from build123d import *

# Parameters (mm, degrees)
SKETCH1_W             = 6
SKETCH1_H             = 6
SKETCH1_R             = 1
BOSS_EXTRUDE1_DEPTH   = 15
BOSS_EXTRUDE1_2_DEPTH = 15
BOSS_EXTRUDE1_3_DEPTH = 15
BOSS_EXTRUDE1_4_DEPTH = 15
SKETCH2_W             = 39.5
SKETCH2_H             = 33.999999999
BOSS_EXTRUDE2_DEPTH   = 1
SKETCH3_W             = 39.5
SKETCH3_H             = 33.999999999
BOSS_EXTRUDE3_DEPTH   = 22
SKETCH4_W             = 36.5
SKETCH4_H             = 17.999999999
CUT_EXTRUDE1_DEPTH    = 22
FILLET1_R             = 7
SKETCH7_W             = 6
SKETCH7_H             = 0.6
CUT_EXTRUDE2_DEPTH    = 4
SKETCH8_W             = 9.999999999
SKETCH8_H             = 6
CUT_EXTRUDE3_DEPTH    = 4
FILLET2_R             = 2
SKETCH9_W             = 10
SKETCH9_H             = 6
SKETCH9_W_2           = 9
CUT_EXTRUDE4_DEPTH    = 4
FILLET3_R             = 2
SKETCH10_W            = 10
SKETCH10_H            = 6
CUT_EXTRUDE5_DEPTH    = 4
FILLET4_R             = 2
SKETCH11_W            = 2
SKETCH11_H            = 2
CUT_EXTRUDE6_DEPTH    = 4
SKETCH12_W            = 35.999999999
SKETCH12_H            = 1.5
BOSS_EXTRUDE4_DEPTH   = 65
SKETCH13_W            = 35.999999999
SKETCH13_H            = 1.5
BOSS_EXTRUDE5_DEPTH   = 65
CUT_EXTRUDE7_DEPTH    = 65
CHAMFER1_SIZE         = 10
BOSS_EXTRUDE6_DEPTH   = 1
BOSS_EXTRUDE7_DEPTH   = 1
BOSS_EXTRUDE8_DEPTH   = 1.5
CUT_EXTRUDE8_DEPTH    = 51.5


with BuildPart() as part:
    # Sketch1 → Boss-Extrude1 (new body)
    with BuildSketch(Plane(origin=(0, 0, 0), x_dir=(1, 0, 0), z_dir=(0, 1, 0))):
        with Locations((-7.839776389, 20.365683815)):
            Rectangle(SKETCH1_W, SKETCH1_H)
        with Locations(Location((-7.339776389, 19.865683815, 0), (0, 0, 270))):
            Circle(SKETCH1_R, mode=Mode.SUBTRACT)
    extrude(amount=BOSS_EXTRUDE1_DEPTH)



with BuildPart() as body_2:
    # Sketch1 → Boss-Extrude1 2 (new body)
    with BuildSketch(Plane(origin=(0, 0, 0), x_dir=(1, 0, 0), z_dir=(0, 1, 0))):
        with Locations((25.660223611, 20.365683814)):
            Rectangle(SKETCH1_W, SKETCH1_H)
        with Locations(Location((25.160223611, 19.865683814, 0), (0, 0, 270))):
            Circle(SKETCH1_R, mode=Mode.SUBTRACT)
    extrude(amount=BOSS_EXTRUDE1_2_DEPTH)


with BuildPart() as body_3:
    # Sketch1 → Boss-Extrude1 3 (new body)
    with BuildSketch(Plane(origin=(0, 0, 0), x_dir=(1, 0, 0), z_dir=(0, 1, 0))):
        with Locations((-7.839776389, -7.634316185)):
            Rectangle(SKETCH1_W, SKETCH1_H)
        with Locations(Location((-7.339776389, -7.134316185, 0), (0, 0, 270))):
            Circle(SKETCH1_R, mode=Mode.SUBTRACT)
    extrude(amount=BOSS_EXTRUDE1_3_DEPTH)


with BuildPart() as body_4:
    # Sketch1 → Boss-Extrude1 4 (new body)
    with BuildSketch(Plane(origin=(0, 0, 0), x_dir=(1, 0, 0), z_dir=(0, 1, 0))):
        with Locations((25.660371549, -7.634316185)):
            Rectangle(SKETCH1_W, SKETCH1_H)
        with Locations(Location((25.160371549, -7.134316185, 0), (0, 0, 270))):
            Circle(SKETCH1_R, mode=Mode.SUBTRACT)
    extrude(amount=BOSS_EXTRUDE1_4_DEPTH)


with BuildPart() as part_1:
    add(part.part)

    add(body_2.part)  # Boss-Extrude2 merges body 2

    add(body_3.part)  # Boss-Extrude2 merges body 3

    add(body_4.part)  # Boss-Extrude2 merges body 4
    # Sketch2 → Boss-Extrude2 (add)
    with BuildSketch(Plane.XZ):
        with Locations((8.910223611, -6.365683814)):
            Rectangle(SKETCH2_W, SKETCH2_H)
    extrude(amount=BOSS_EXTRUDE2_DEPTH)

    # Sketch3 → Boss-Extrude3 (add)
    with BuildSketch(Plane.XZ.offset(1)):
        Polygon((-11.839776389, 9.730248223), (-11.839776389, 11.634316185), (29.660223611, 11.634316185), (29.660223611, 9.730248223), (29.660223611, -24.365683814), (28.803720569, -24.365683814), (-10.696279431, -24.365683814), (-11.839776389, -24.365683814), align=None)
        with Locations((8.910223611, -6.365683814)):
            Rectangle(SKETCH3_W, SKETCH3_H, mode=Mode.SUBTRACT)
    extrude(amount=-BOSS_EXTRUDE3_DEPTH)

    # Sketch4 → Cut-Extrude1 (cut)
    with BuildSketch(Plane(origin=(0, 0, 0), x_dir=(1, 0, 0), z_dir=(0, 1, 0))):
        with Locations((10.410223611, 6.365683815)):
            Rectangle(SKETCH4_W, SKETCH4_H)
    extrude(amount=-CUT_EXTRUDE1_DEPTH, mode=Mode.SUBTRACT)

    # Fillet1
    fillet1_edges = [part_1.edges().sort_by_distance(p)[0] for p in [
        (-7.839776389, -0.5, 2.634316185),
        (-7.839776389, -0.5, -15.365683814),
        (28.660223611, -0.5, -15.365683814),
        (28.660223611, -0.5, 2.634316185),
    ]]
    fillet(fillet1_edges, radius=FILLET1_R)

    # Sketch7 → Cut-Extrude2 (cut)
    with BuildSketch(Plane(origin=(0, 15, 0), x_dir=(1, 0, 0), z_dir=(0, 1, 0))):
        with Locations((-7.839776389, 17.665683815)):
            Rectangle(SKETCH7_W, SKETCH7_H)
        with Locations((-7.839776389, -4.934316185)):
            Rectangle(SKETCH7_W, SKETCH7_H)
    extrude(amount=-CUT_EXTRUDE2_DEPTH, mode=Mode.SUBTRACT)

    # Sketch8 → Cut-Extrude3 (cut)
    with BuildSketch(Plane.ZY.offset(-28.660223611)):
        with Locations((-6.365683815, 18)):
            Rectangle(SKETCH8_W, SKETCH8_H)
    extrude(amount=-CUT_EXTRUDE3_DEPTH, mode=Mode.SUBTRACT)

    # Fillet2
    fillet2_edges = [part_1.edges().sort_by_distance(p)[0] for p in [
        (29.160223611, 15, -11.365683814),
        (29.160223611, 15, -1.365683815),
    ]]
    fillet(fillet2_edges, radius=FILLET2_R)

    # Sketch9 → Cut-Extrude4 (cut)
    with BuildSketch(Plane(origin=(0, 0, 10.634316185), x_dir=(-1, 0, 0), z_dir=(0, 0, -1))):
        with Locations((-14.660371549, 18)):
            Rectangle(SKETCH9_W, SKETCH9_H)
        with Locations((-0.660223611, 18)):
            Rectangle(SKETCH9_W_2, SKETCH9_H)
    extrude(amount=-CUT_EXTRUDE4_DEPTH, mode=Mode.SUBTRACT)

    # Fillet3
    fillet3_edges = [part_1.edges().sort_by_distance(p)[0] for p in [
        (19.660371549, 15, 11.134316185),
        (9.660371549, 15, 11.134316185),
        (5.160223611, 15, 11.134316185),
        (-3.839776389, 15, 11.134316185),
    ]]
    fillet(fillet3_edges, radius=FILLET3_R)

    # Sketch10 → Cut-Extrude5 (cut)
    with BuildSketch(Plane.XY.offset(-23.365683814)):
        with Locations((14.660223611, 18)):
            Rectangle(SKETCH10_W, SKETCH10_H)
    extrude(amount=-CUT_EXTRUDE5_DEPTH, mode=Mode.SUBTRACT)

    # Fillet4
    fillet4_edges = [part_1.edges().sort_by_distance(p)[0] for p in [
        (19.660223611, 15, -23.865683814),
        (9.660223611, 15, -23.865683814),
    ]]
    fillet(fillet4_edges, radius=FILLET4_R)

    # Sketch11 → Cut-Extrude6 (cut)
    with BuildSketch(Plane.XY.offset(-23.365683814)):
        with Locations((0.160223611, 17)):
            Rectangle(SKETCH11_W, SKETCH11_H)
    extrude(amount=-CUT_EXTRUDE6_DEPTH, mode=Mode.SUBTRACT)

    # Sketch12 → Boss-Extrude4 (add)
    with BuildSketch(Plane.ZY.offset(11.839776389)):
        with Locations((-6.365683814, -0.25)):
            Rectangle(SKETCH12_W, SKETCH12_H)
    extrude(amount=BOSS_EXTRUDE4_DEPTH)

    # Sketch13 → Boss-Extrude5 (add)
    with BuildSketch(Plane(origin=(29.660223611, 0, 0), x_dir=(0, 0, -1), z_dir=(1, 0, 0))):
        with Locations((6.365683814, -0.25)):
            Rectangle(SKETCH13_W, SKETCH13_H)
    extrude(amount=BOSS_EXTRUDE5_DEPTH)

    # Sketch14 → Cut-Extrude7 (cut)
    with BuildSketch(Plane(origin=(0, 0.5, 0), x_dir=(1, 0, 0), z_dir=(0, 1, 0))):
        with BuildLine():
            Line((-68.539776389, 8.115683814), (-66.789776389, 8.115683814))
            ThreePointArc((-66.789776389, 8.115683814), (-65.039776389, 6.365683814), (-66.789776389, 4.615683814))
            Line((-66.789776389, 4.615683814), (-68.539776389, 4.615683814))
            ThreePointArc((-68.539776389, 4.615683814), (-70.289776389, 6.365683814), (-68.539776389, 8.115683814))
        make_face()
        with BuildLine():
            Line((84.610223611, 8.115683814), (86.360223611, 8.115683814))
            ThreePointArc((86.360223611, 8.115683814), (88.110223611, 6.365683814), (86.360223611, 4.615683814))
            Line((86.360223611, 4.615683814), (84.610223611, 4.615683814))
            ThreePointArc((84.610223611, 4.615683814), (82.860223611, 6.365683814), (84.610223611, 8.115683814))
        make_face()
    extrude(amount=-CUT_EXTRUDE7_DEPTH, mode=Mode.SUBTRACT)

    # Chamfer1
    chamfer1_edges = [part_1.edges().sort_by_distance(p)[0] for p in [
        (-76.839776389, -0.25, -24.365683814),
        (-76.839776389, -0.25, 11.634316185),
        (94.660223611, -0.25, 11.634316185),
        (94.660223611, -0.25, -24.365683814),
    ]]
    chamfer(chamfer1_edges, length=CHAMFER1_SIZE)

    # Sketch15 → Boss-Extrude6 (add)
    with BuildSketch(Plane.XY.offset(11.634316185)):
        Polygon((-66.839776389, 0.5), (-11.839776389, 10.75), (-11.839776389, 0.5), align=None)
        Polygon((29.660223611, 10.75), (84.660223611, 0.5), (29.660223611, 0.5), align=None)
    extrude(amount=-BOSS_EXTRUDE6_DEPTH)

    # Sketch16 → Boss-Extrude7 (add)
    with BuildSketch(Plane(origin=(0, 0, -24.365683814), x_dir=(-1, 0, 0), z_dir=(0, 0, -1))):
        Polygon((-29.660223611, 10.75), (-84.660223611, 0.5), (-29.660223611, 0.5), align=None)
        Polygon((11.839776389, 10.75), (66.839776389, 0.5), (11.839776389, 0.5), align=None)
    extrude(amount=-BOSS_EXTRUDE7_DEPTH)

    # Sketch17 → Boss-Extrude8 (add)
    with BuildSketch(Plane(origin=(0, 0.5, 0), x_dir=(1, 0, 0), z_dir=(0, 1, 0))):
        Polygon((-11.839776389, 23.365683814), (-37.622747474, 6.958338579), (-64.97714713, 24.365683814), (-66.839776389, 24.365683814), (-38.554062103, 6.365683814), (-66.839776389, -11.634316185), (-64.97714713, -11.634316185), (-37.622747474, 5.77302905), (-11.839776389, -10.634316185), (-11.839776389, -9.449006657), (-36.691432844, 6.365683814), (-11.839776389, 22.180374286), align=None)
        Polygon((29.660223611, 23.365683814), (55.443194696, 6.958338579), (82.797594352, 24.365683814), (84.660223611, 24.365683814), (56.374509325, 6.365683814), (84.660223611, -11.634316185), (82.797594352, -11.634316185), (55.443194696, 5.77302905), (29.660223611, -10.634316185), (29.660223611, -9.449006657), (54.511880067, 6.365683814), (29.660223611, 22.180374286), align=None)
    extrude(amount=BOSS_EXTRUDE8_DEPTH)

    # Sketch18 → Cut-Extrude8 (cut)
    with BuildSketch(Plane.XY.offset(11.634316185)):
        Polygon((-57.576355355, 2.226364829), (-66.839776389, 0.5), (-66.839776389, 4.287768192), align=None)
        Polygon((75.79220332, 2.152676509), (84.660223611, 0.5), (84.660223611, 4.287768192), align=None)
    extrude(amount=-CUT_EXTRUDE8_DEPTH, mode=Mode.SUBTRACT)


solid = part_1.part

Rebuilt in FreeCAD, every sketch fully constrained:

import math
import FreeCAD as App
import Part
import Sketcher


def edges_at(feature, points):
    """Names of the edges that pass closest to the given points."""
    edges = feature.Shape.Edges
    near = lambda p: min(range(len(edges)), key=lambda i: edges[i].distToShape(Part.Vertex(*p))[0])
    return sorted({f"Edge{near(p) + 1}" for p in points})


def add_polygon(sketch, points):
    """Adds a closed chain of lines whose ends are joined by coincident constraints."""
    first, n = sketch.GeometryCount, len(points)
    for a, b in zip(points, points[1:] + points[:1]):
        sketch.addGeometry(Part.LineSegment(App.Vector(*a, 0), App.Vector(*b, 0)), False)
    for i in range(n):
        sketch.addConstraint(Sketcher.Constraint("Coincident", first + i, 2, first + (i + 1) % n, 1))

doc = App.newDocument("Part")
body = doc.addObject("PartDesign::Body", "Body")

# Sketch on XZ plane
sketch1 = doc.addObject("Sketcher::SketchObject", "Sketch")
body.addObject(sketch1)
sketch1.AttachmentSupport = (doc.XZ_Plane, [""])
sketch1.MapMode = "FlatFace"
add_polygon(sketch1, [(-10.8, -23.4), (-10.8, -17.4), (-4.8, -17.4), (-4.8, -23.4)])  # lines 0-3
sketch1.addGeometry(Part.Circle(App.Vector(-7.3, -19.9, 0), App.Vector(0, 0, 1), 1), False)  # 4
sketch1.addConstraint([
    Sketcher.Constraint("Vertical", 0),
    Sketcher.Constraint("Horizontal", 1),
    Sketcher.Constraint("Vertical", 2),
    Sketcher.Constraint("Horizontal", 3),
    Sketcher.Constraint("Equal", 3, 0),
    Sketcher.Constraint("Diameter", 4, 2.0),
    Sketcher.Constraint("DistanceX", 1, 1, 1, 2, 6.0),
    Sketcher.Constraint("DistanceX", 0, 2, 4, 3, 3.5),
    Sketcher.Constraint("DistanceY", 4, 3, 0, 2, 2.5),
    Sketcher.Constraint("DistanceX", 4, 3, -1, 1, 7.339776),
    Sketcher.Constraint("DistanceY", 4, 3, -1, 1, 19.865684),
])
pad1 = doc.addObject("PartDesign::Pad", "Pad")
body.addObject(pad1)
pad1.Profile = sketch1
pad1.Length = 15
pad1.Reversed = True
body2 = doc.addObject("PartDesign::Body", "Body001")

# Sketch on XZ plane
sketch2 = doc.addObject("Sketcher::SketchObject", "Sketch001")
body2.addObject(sketch2)
sketch2.AttachmentSupport = (doc.getObject("XZ_Plane001"), [""])
sketch2.MapMode = "FlatFace"
add_polygon(sketch2, [(22.7, -23.4), (22.7, -17.4), (28.7, -17.4), (28.7, -23.4)])  # lines 0-3
sketch2.addGeometry(Part.Circle(App.Vector(25.2, -19.9, 0), App.Vector(0, 0, 1), 1), False)  # 4
sketch2.addConstraint([
    Sketcher.Constraint("Vertical", 0),
    Sketcher.Constraint("Horizontal", 1),
    Sketcher.Constraint("Vertical", 2),
    Sketcher.Constraint("Horizontal", 3),
    Sketcher.Constraint("Equal", 3, 0),
    Sketcher.Constraint("Diameter", 4, 2.0),
    Sketcher.Constraint("DistanceX", 1, 1, 1, 2, 6.0),
    Sketcher.Constraint("DistanceX", 0, 2, 4, 3, 2.5),
    Sketcher.Constraint("DistanceY", 4, 3, 0, 2, 2.5),
    Sketcher.Constraint("DistanceX", -1, 1, 4, 3, 25.160224),
    Sketcher.Constraint("DistanceY", 4, 3, -1, 1, 19.865684),
])
pad2 = doc.addObject("PartDesign::Pad", "Pad001")
body2.addObject(pad2)
pad2.Profile = sketch2
pad2.Length = 15
pad2.Reversed = True
body3 = doc.addObject("PartDesign::Body", "Body002")

# Sketch on XZ plane
sketch3 = doc.addObject("Sketcher::SketchObject", "Sketch002")
body3.addObject(sketch3)
sketch3.AttachmentSupport = (doc.getObject("XZ_Plane002"), [""])
sketch3.MapMode = "FlatFace"
add_polygon(sketch3, [(-10.8, 4.6), (-10.8, 10.6), (-4.8, 10.6), (-4.8, 4.6)])  # lines 0-3
sketch3.addGeometry(Part.Circle(App.Vector(-7.3, 7.1, 0), App.Vector(0, 0, 1), 1), False)  # 4
sketch3.addConstraint([
    Sketcher.Constraint("Vertical", 0),
    Sketcher.Constraint("Horizontal", 1),
    Sketcher.Constraint("Vertical", 2),
    Sketcher.Constraint("Horizontal", 3),
    Sketcher.Constraint("Equal", 3, 0),
    Sketcher.Constraint("Diameter", 4, 2.0),
    Sketcher.Constraint("DistanceX", 1, 1, 1, 2, 6.0),
    Sketcher.Constraint("DistanceX", 0, 2, 4, 3, 3.5),
    Sketcher.Constraint("DistanceY", 4, 3, 0, 2, 3.5),
    Sketcher.Constraint("DistanceX", 4, 3, -1, 1, 7.339776),
    Sketcher.Constraint("DistanceY", -1, 1, 4, 3, 7.134316),
])
pad3 = doc.addObject("PartDesign::Pad", "Pad002")
body3.addObject(pad3)
pad3.Profile = sketch3
pad3.Length = 15
pad3.Reversed = True
body4 = doc.addObject("PartDesign::Body", "Body003")

# Sketch on XZ plane
sketch4 = doc.addObject("Sketcher::SketchObject", "Sketch003")
body4.addObject(sketch4)
sketch4.AttachmentSupport = (doc.getObject("XZ_Plane003"), [""])
sketch4.MapMode = "FlatFace"
add_polygon(sketch4, [(22.7, 4.6), (22.7, 10.6), (28.7, 10.6), (28.7, 4.6)])  # lines 0-3
sketch4.addGeometry(Part.Circle(App.Vector(25.2, 7.1, 0), App.Vector(0, 0, 1), 1), False)  # 4
sketch4.addConstraint([
    Sketcher.Constraint("Vertical", 0),
    Sketcher.Constraint("Horizontal", 1),
    Sketcher.Constraint("Vertical", 2),
    Sketcher.Constraint("Horizontal", 3),
    Sketcher.Constraint("Equal", 3, 0),
    Sketcher.Constraint("Diameter", 4, 2.0),
    Sketcher.Constraint("DistanceX", 1, 1, 1, 2, 6.0),
    Sketcher.Constraint("DistanceX", 0, 2, 4, 3, 2.5),
    Sketcher.Constraint("DistanceY", 4, 3, 0, 2, 3.5),
    Sketcher.Constraint("DistanceX", -1, 1, 4, 3, 25.160372),
    Sketcher.Constraint("DistanceY", -1, 1, 4, 3, 7.134316),
])
pad4 = doc.addObject("PartDesign::Pad", "Pad003")
body4.addObject(pad4)
pad4.Profile = sketch4
pad4.Length = 15
pad4.Reversed = True
body.AllowCompound = True
doc.recompute()

boolean = doc.addObject("PartDesign::Boolean", "Boolean")
body.addObject(boolean)
boolean.Type = "Fuse"
boolean.addObjects([body2])
doc.recompute()

boolean2 = doc.addObject("PartDesign::Boolean", "Boolean001")
body.addObject(boolean2)
boolean2.Type = "Fuse"
boolean2.addObjects([body3])
doc.recompute()

boolean3 = doc.addObject("PartDesign::Boolean", "Boolean002")
body.addObject(boolean3)
boolean3.Type = "Fuse"
boolean3.addObjects([body4])

# Sketch on XZ plane
sketch5 = doc.addObject("Sketcher::SketchObject", "Sketch004")
body.addObject(sketch5)
sketch5.AttachmentSupport = (doc.XZ_Plane, [""])
sketch5.MapMode = "FlatFace"
add_polygon(sketch5, [(-11, 11), (-11, -23), (29, -23), (29, 11)])  # lines 0-3
sketch5.addConstraint([
    Sketcher.Constraint("Vertical", 0),
    Sketcher.Constraint("Horizontal", 1),
    Sketcher.Constraint("Vertical", 2),
    Sketcher.Constraint("Horizontal", 3),
    Sketcher.Constraint("DistanceY", 0, 2, 0, 1, 34.0),
    Sketcher.Constraint("DistanceX", 1, 1, 1, 2, 39.5),
    Sketcher.Constraint("DistanceX", 0, 2, -1, 1, 10.839776),
    Sketcher.Constraint("DistanceY", 0, 2, -1, 1, 23.365684),
])
pad5 = doc.addObject("PartDesign::Pad", "Pad004")
body.addObject(pad5)
pad5.Profile = sketch5
pad5.Length = 1

# Sketch on XZ plane
sketch6 = doc.addObject("Sketcher::SketchObject", "Sketch005")
body.addObject(sketch6)
sketch6.AttachmentSupport = (doc.XZ_Plane, [""])
sketch6.MapMode = "FlatFace"
sketch6.AttachmentOffset = App.Placement(App.Vector(0, 0, 1), App.Rotation())
add_polygon(sketch6, [(-12, 12), (-12, -24), (30, -24), (30, 12)])  # lines 0-3
add_polygon(sketch6, [(-11, -23), (-11, 11), (29, 11), (29, -23)])  # lines 4-7
sketch6.addConstraint([
    Sketcher.Constraint("Vertical", 0),
    Sketcher.Constraint("Horizontal", 1),
    Sketcher.Constraint("Vertical", 2),
    Sketcher.Constraint("Horizontal", 3),
    Sketcher.Constraint("Vertical", 4),
    Sketcher.Constraint("Horizontal", 5),
    Sketcher.Constraint("Vertical", 6),
    Sketcher.Constraint("Horizontal", 7),
    Sketcher.Constraint("DistanceY", 0, 2, 0, 1, 36.0),
    Sketcher.Constraint("DistanceY", 4, 1, 4, 2, 34.0),
    Sketcher.Constraint("DistanceX", 1, 1, 1, 2, 41.5),
    Sketcher.Constraint("DistanceX", 5, 1, 5, 2, 39.5),
    Sketcher.Constraint("DistanceX", 3, 2, 4, 2, 1.0),
    Sketcher.Constraint("DistanceY", 4, 2, 3, 2, 1.0),
    Sketcher.Constraint("DistanceX", 0, 2, -1, 1, 11.839776),
    Sketcher.Constraint("DistanceY", 0, 2, -1, 1, 24.365684),
])
pad6 = doc.addObject("PartDesign::Pad", "Pad005")
body.addObject(pad6)
pad6.Profile = sketch6
pad6.Length = 22
pad6.Reversed = True

# Sketch on XZ plane
sketch7 = doc.addObject("Sketcher::SketchObject", "Sketch006")
body.addObject(sketch7)
sketch7.AttachmentSupport = (doc.XZ_Plane, [""])
sketch7.MapMode = "FlatFace"
add_polygon(sketch7, [(-8, -15), (-8, 3), (29, 3), (29, -15)])  # lines 0-3
sketch7.addConstraint([
    Sketcher.Constraint("Vertical", 0),
    Sketcher.Constraint("Horizontal", 1),
    Sketcher.Constraint("Vertical", 2),
    Sketcher.Constraint("Horizontal", 3),
    Sketcher.Constraint("DistanceY", 0, 1, 0, 2, 18.0),
    Sketcher.Constraint("DistanceX", 1, 1, 1, 2, 36.5),
    Sketcher.Constraint("DistanceX", 0, 2, -1, 1, 7.839776),
    Sketcher.Constraint("DistanceY", -1, 1, 0, 2, 2.634316),
])
pocket1 = doc.addObject("PartDesign::Pocket", "Pocket")
body.addObject(pocket1)
pocket1.Profile = sketch7
pocket1.Length = 22
pocket1.Reversed = True
doc.recompute()

fillet = doc.addObject("PartDesign::Fillet", "Fillet")
body.addObject(fillet)
fillet.Base = (pocket1, edges_at(pocket1, [
    (-7.84, -0.5, 2.634),
    (-7.84, -0.5, -15.366),
    (28.66, -0.5, -15.366),
    (28.66, -0.5, 2.634),
]))
fillet.Radius = 7

# Sketch on XZ plane
sketch8 = doc.addObject("Sketcher::SketchObject", "Sketch007")
body.addObject(sketch8)
sketch8.AttachmentSupport = (doc.XZ_Plane, [""])
sketch8.MapMode = "FlatFace"
sketch8.AttachmentOffset = App.Placement(App.Vector(0, 0, -15), App.Rotation())
add_polygon(sketch8, [(-10.8, -18), (-10.8, -17.4), (-4.8, -17.4), (-4.8, -18)])  # lines 0-3
add_polygon(sketch8, [(-10.8, 4.6), (-10.8, 5.2), (-4.8, 5.2), (-4.8, 4.6)])  # lines 4-7
sketch8.addConstraint([
    Sketcher.Constraint("Vertical", 0),
    Sketcher.Constraint("Horizontal", 1),
    Sketcher.Constraint("Vertical", 2),
    Sketcher.Constraint("Horizontal", 3),
    Sketcher.Constraint("Vertical", 4),
    Sketcher.Constraint("Horizontal", 5),
    Sketcher.Constraint("Vertical", 6),
    Sketcher.Constraint("Horizontal", 7),
    Sketcher.Constraint("Vertical", 3, 2, 4, 2),
    Sketcher.Constraint("Vertical", 2, 2, 5, 2),
    Sketcher.Constraint("Equal", 2, 4),
    Sketcher.Constraint("DistanceX", 1, 1, 1, 2, 6.0),
    Sketcher.Constraint("DistanceY", 0, 1, 0, 2, 0.6),
    Sketcher.Constraint("DistanceY", 1, 2, 6, 2, 22.0),
    Sketcher.Constraint("DistanceX", 0, 2, -1, 1, 10.839776),
    Sketcher.Constraint("DistanceY", 0, 2, -1, 1, 17.365684),
])
pocket2 = doc.addObject("PartDesign::Pocket", "Pocket001")
body.addObject(pocket2)
pocket2.Profile = sketch8
pocket2.Length = 4
pocket2.Reversed = True

# Sketch on YZ plane
sketch9 = doc.addObject("Sketcher::SketchObject", "Sketch008")
body.addObject(sketch9)
sketch9.AttachmentSupport = (doc.YZ_Plane, [""])
sketch9.MapMode = "FlatFace"
sketch9.AttachmentOffset = App.Placement(App.Vector(0, 0, 28.660224), App.Rotation())
add_polygon(sketch9, [(21, -11), (15, -11), (15, -1), (21, -1)])  # lines 0-3
sketch9.addConstraint([
    Sketcher.Constraint("Horizontal", 0),
    Sketcher.Constraint("Vertical", 1),
    Sketcher.Constraint("Horizontal", 2),
    Sketcher.Constraint("Vertical", 3),
    Sketcher.Constraint("DistanceX", 0, 2, 0, 1, 6.0),
    Sketcher.Constraint("DistanceY", 1, 1, 1, 2, 10.0),
    Sketcher.Constraint("DistanceX", -1, 1, 0, 2, 15.0),
    Sketcher.Constraint("DistanceY", 0, 2, -1, 1, 11.365684),
])
pocket3 = doc.addObject("PartDesign::Pocket", "Pocket002")
body.addObject(pocket3)
pocket3.Profile = sketch9
pocket3.Length = 4
pocket3.Reversed = True
doc.recompute()

fillet2 = doc.addObject("PartDesign::Fillet", "Fillet001")
body.addObject(fillet2)
fillet2.Base = (pocket3, edges_at(pocket3, [(29.16, 15, -11.366), (29.16, 15, -1.366)]))
fillet2.Radius = 2

# Sketch on XY plane
sketch10 = doc.addObject("Sketcher::SketchObject", "Sketch009")
body.addObject(sketch10)
sketch10.AttachmentSupport = (doc.XY_Plane, [""])
sketch10.MapMode = "FlatFace"
sketch10.AttachmentOffset = App.Placement(App.Vector(0, 0, 10.634316), App.Rotation())
add_polygon(sketch10, [(20, 21), (20, 15), (10, 15), (10, 21)])  # lines 0-3
add_polygon(sketch10, [(5, 21), (5, 15), (-4, 15), (-4, 21)])  # lines 4-7
sketch10.addConstraint([
    Sketcher.Constraint("Vertical", 0),
    Sketcher.Constraint("Horizontal", 1),
    Sketcher.Constraint("Vertical", 2),
    Sketcher.Constraint("Horizontal", 3),
    Sketcher.Constraint("Vertical", 4),
    Sketcher.Constraint("Horizontal", 5),
    Sketcher.Constraint("Vertical", 6),
    Sketcher.Constraint("Horizontal", 7),
    Sketcher.Constraint("Horizontal", 1, 2, 4, 2),
    Sketcher.Constraint("Horizontal", 3, 2, 6, 2),
    Sketcher.Constraint("DistanceX", 1, 2, 1, 1, 10.0),
    Sketcher.Constraint("DistanceX", 5, 2, 5, 1, 9.0),
    Sketcher.Constraint("DistanceY", 0, 2, 0, 1, 6.0),
    Sketcher.Constraint("DistanceY", -1, 1, 0, 2, 15.0),
    Sketcher.Constraint("DistanceX", -1, 1, 0, 2, 19.660372),
    Sketcher.Constraint("DistanceX", -1, 1, 4, 2, 5.160224),
])
pocket4 = doc.addObject("PartDesign::Pocket", "Pocket003")
body.addObject(pocket4)
pocket4.Profile = sketch10
pocket4.Length = 4
pocket4.Reversed = True
doc.recompute()

fillet3 = doc.addObject("PartDesign::Fillet", "Fillet002")
body.addObject(fillet3)
fillet3.Base = (pocket4, edges_at(pocket4, [
    (19.66, 15, 11.134),
    (9.66, 15, 11.134),
    (5.16, 15, 11.134),
    (-3.84, 15, 11.134),
]))
fillet3.Radius = 2

# Sketch on XY plane
sketch11 = doc.addObject("Sketcher::SketchObject", "Sketch010")
body.addObject(sketch11)
sketch11.AttachmentSupport = (doc.XY_Plane, [""])
sketch11.MapMode = "FlatFace"
sketch11.AttachmentOffset = App.Placement(App.Vector(0, 0, -23.365684), App.Rotation())
add_polygon(sketch11, [(10, 21), (10, 15), (20, 15), (20, 21)])  # lines 0-3
sketch11.addConstraint([
    Sketcher.Constraint("Vertical", 0),
    Sketcher.Constraint("Horizontal", 1),
    Sketcher.Constraint("Vertical", 2),
    Sketcher.Constraint("Horizontal", 3),
    Sketcher.Constraint("DistanceX", 1, 1, 1, 2, 10.0),
    Sketcher.Constraint("DistanceY", 0, 2, 0, 1, 6.0),
    Sketcher.Constraint("DistanceY", -1, 1, 0, 2, 15.0),
    Sketcher.Constraint("DistanceX", -1, 1, 0, 2, 9.660224),
])
pocket5 = doc.addObject("PartDesign::Pocket", "Pocket004")
body.addObject(pocket5)
pocket5.Profile = sketch11
pocket5.Length = 4
doc.recompute()

fillet4 = doc.addObject("PartDesign::Fillet", "Fillet003")
body.addObject(fillet4)
fillet4.Base = (pocket5, edges_at(pocket5, [(19.66, 15, -23.866), (9.66, 15, -23.866)]))
fillet4.Radius = 2

# Sketch on XY plane
sketch12 = doc.addObject("Sketcher::SketchObject", "Sketch011")
body.addObject(sketch12)
sketch12.AttachmentSupport = (doc.XY_Plane, [""])
sketch12.MapMode = "FlatFace"
sketch12.AttachmentOffset = App.Placement(App.Vector(0, 0, -23.365684), App.Rotation())
add_polygon(sketch12, [(-0.8, 18), (-0.8, 16), (1.2, 16), (1.2, 18)])  # lines 0-3
sketch12.addConstraint([
    Sketcher.Constraint("Vertical", 0),
    Sketcher.Constraint("Horizontal", 1),
    Sketcher.Constraint("Vertical", 2),
    Sketcher.Constraint("Horizontal", 3),
    Sketcher.Constraint("Equal", 3, 0),
    Sketcher.Constraint("DistanceX", 1, 1, 1, 2, 2.0),
    Sketcher.Constraint("DistanceY", -1, 1, 0, 2, 16.0),
    Sketcher.Constraint("DistanceX", 0, 2, -1, 1, 0.839776),
])
pocket6 = doc.addObject("PartDesign::Pocket", "Pocket005")
body.addObject(pocket6)
pocket6.Profile = sketch12
pocket6.Length = 4

# Sketch on YZ plane
sketch13 = doc.addObject("Sketcher::SketchObject", "Sketch012")
body.addObject(sketch13)
sketch13.AttachmentSupport = (doc.YZ_Plane, [""])
sketch13.MapMode = "FlatFace"
sketch13.AttachmentOffset = App.Placement(App.Vector(0, 0, -11.839776), App.Rotation())
add_polygon(sketch13, [(0.5, -24.4), (-1, -24.4), (-1, 11.6), (0.5, 11.6)])  # lines 0-3
sketch13.addConstraint([
    Sketcher.Constraint("Horizontal", 0),
    Sketcher.Constraint("Vertical", 1),
    Sketcher.Constraint("Horizontal", 2),
    Sketcher.Constraint("Vertical", 3),
    Sketcher.Constraint("DistanceY", 1, 1, 1, 2, 36.0),
    Sketcher.Constraint("DistanceX", 0, 2, 0, 1, 1.5),
    Sketcher.Constraint("DistanceX", 0, 2, -1, 1, 1.0),
    Sketcher.Constraint("DistanceY", 0, 2, -1, 1, 24.365684),
])
pad7 = doc.addObject("PartDesign::Pad", "Pad006")
body.addObject(pad7)
pad7.Profile = sketch13
pad7.Length = 65
pad7.Reversed = True

# Sketch on YZ plane
sketch14 = doc.addObject("Sketcher::SketchObject", "Sketch013")
body.addObject(sketch14)
sketch14.AttachmentSupport = (doc.YZ_Plane, [""])
sketch14.MapMode = "FlatFace"
sketch14.AttachmentOffset = App.Placement(App.Vector(0, 0, 29.660224), App.Rotation())
add_polygon(sketch14, [(0.5, 11.6), (-1, 11.6), (-1, -24.4), (0.5, -24.4)])  # lines 0-3
sketch14.addConstraint([
    Sketcher.Constraint("Horizontal", 0),
    Sketcher.Constraint("Vertical", 1),
    Sketcher.Constraint("Horizontal", 2),
    Sketcher.Constraint("Vertical", 3),
    Sketcher.Constraint("DistanceY", 1, 2, 1, 1, 36.0),
    Sketcher.Constraint("DistanceX", 0, 2, 0, 1, 1.5),
    Sketcher.Constraint("DistanceX", 0, 2, -1, 1, 1.0),
    Sketcher.Constraint("DistanceY", -1, 1, 0, 2, 11.634316),
])
pad8 = doc.addObject("PartDesign::Pad", "Pad007")
body.addObject(pad8)
pad8.Profile = sketch14
pad8.Length = 65

# Sketch on XZ plane
sketch15 = doc.addObject("Sketcher::SketchObject", "Sketch014")
body.addObject(sketch15)
sketch15.AttachmentSupport = (doc.XZ_Plane, [""])
sketch15.MapMode = "FlatFace"
sketch15.AttachmentOffset = App.Placement(App.Vector(0, 0, -0.5), App.Rotation())
sketch15.addGeometry([
    Part.LineSegment(App.Vector(-66.8, -8.1, 0), App.Vector(-68.5, -8.1, 0)),  # 0
    Part.ArcOfCircle(Part.Circle(App.Vector(-68.5, -6.4, 0), App.Vector(0, 0, 1), 1.8), math.radians(90), math.radians(270)),  # 1
    Part.LineSegment(App.Vector(-68.5, -4.6, 0), App.Vector(-66.8, -4.6, 0)),  # 2
    Part.ArcOfCircle(Part.Circle(App.Vector(-66.8, -6.4, 0), App.Vector(0, 0, 1), 1.8), math.radians(-90), math.radians(90)),  # 3
    Part.LineSegment(App.Vector(86.4, -8.1, 0), App.Vector(84.6, -8.1, 0)),  # 4
    Part.ArcOfCircle(Part.Circle(App.Vector(84.6, -6.4, 0), App.Vector(0, 0, 1), 1.8), math.radians(90), math.radians(270)),  # 5
    Part.LineSegment(App.Vector(84.6, -4.6, 0), App.Vector(86.4, -4.6, 0)),  # 6
    Part.ArcOfCircle(Part.Circle(App.Vector(86.4, -6.4, 0), App.Vector(0, 0, 1), 1.8), math.radians(-90), math.radians(90)),  # 7
], False)
sketch15.addConstraint([
    Sketcher.Constraint("Tangent", 0, 2, 1, 2),
    Sketcher.Constraint("Tangent", 1, 1, 2, 1),
    Sketcher.Constraint("Tangent", 2, 2, 3, 2),
    Sketcher.Constraint("Tangent", 3, 1, 0, 1),
    Sketcher.Constraint("Tangent", 4, 2, 5, 2),
    Sketcher.Constraint("Tangent", 5, 1, 6, 1),
    Sketcher.Constraint("Tangent", 6, 2, 7, 2),
    Sketcher.Constraint("Tangent", 7, 1, 4, 1),
    Sketcher.Constraint("Horizontal", 0),
    Sketcher.Constraint("Horizontal", 2),
    Sketcher.Constraint("Horizontal", 4),
    Sketcher.Constraint("Horizontal", 6),
    Sketcher.Constraint("Equal", 3, 5),
    Sketcher.Constraint("Horizontal", 3, 3, 5, 3),
    Sketcher.Constraint("Equal", 2, 4),
    Sketcher.Constraint("Radius", 1, 1.75),
    Sketcher.Constraint("DistanceX", 0, 2, 0, 1, 1.75),
    Sketcher.Constraint("DistanceX", 3, 3, 5, 3, 151.4),
    Sketcher.Constraint("DistanceX", 1, 3, -1, 1, 68.539776),
    Sketcher.Constraint("DistanceY", 1, 3, -1, 1, 6.365684),
])
pocket7 = doc.addObject("PartDesign::Pocket", "Pocket006")
body.addObject(pocket7)
pocket7.Profile = sketch15
pocket7.Length = 65
pocket7.Reversed = True
doc.recompute()

chamfer = doc.addObject("PartDesign::Chamfer", "Chamfer")
body.addObject(chamfer)
chamfer.Base = (pocket7, edges_at(pocket7, [
    (-76.84, -0.25, -24.366),
    (-76.84, -0.25, 11.634),
    (94.66, -0.25, 11.634),
    (94.66, -0.25, -24.366),
]))
chamfer.Size = 10

# Sketch on XY plane
sketch16 = doc.addObject("Sketcher::SketchObject", "Sketch015")
body.addObject(sketch16)
sketch16.AttachmentSupport = (doc.XY_Plane, [""])
sketch16.MapMode = "FlatFace"
sketch16.AttachmentOffset = App.Placement(App.Vector(0, 0, 11.634316), App.Rotation())
add_polygon(sketch16, [(-12, 11), (-67, 0), (-12, 0)])  # lines 0-2
add_polygon(sketch16, [(85, 0), (30, 11), (30, 0)])  # lines 3-5
sketch16.addConstraint([
    Sketcher.Constraint("Horizontal", 1),
    Sketcher.Constraint("Vertical", 2),
    Sketcher.Constraint("Vertical", 4),
    Sketcher.Constraint("Horizontal", 5),
    Sketcher.Constraint("Horizontal", 2, 2, 3, 2),
    Sketcher.Constraint("Horizontal", 1, 2, 4, 2),
    Sketcher.Constraint("Equal", 1, 5),
    Sketcher.Constraint("DistanceX", 1, 1, 1, 2, 55.0),
    Sketcher.Constraint("DistanceY", 2, 1, 2, 2, 10.25),
    Sketcher.Constraint("DistanceY", -1, 1, 0, 2, 0.5),
    Sketcher.Constraint("DistanceX", 2, 2, 3, 2, 41.5),
    Sketcher.Constraint("DistanceX", 0, 2, -1, 1, 66.839776),
])
pad9 = doc.addObject("PartDesign::Pad", "Pad008")
body.addObject(pad9)
pad9.Profile = sketch16
pad9.Length = 1
pad9.Reversed = True

# Sketch on XY plane
sketch17 = doc.addObject("Sketcher::SketchObject", "Sketch016")
body.addObject(sketch17)
sketch17.AttachmentSupport = (doc.XY_Plane, [""])
sketch17.MapMode = "FlatFace"
sketch17.AttachmentOffset = App.Placement(App.Vector(0, 0, -24.365684), App.Rotation())
add_polygon(sketch17, [(30, 11), (85, 0), (30, 0)])  # lines 0-2
add_polygon(sketch17, [(-67, 0), (-12, 11), (-12, 0)])  # lines 3-5
sketch17.addConstraint([
    Sketcher.Constraint("Horizontal", 1),
    Sketcher.Constraint("Vertical", 2),
    Sketcher.Constraint("Vertical", 4),
    Sketcher.Constraint("Horizontal", 5),
    Sketcher.Constraint("Horizontal", 2, 2, 3, 2),
    Sketcher.Constraint("Horizontal", 1, 2, 4, 2),
    Sketcher.Constraint("Equal", 1, 5),
    Sketcher.Constraint("DistanceX", 1, 2, 1, 1, 55.0),
    Sketcher.Constraint("DistanceY", 2, 1, 2, 2, 10.25),
    Sketcher.Constraint("DistanceY", -1, 1, 0, 2, 0.5),
    Sketcher.Constraint("DistanceX", 3, 2, 2, 2, 41.5),
    Sketcher.Constraint("DistanceX", -1, 1, 0, 2, 84.660224),
])
pad10 = doc.addObject("PartDesign::Pad", "Pad009")
body.addObject(pad10)
pad10.Profile = sketch17
pad10.Length = 1

# Sketch on XZ plane
sketch18 = doc.addObject("Sketcher::SketchObject", "Sketch017")
body.addObject(sketch18)
sketch18.AttachmentSupport = (doc.XZ_Plane, [""])
sketch18.MapMode = "FlatFace"
sketch18.AttachmentOffset = App.Placement(App.Vector(0, 0, -0.5), App.Rotation())
add_polygon(sketch18, [(-11.8, -23.4), (-37.6, -7), (-65, -24.4), (-66.8, -24.4), (-38.6, -6.4), (-66.8, 11.6), (-65, 11.6), (-37.6, -5.8), (-11.8, 10.6), (-11.8, 9.4), (-36.7, -6.4), (-11.8, -22.2)])  # lines 0-11
add_polygon(sketch18, [(55.4, -7), (29.7, -23.4), (29.7, -22.2), (54.5, -6.4), (29.7, 9.4), (29.7, 10.6), (55.4, -5.8), (82.8, 11.6), (84.7, 11.6), (56.4, -6.4), (84.7, -24.4), (82.8, -24.4)])  # lines 12-23
sketch18.addConstraint([
    Sketcher.Constraint("Horizontal", 2),
    Sketcher.Constraint("Horizontal", 5),
    Sketcher.Constraint("Vertical", 8),
    Sketcher.Constraint("Vertical", 11),
    Sketcher.Constraint("Vertical", 13),
    Sketcher.Constraint("Vertical", 16),
    Sketcher.Constraint("Horizontal", 19),
    Sketcher.Constraint("Horizontal", 22),
    Sketcher.Constraint("Parallel", 1, 3),
    Sketcher.Constraint("Parallel", 0, 4),
    Sketcher.Constraint("Parallel", 4, 6),
    Sketcher.Constraint("Parallel", 3, 7),
    Sketcher.Constraint("Parallel", 7, 9),
    Sketcher.Constraint("Parallel", 6, 10),
    Sketcher.Constraint("Parallel", 9, 12),
    Sketcher.Constraint("Parallel", 12, 14),
    Sketcher.Constraint("Parallel", 10, 15),
    Sketcher.Constraint("Parallel", 15, 17),
    Sketcher.Constraint("Parallel", 14, 18),
    Sketcher.Constraint("Parallel", 18, 20),
    Sketcher.Constraint("Parallel", 17, 21),
    Sketcher.Constraint("Parallel", 21, 23),
    Sketcher.Constraint("Horizontal", 3, 2, 9, 2),
    Sketcher.Constraint("Horizontal", 11, 2, 12, 2),
    Sketcher.Constraint("Horizontal", 10, 2, 13, 2),
    Sketcher.Constraint("Horizontal", 9, 2, 14, 2),
    Sketcher.Constraint("Horizontal", 8, 2, 15, 2),
    Sketcher.Constraint("Horizontal", 7, 2, 16, 2),
    Sketcher.Constraint("Horizontal", 6, 2, 17, 2),
    Sketcher.Constraint("Horizontal", 5, 2, 18, 2),
    Sketcher.Constraint("Horizontal", 14, 2, 20, 2),
    Sketcher.Constraint("Horizontal", 2, 2, 21, 2),
    Sketcher.Constraint("Horizontal", 0, 2, 23, 2),
    Sketcher.Constraint("Vertical", 2, 2, 4, 2),
    Sketcher.Constraint("Vertical", 1, 2, 5, 2),
    Sketcher.Constraint("Vertical", 0, 2, 6, 2),
    Sketcher.Constraint("Vertical", 8, 2, 10, 2),
    Sketcher.Constraint("Vertical", 13, 2, 15, 2),
    Sketcher.Constraint("Equal", 5, 19),
    Sketcher.Constraint("DistanceY", 1, 2, 3, 2, 18.0),
    Sketcher.Constraint("DistanceY", 3, 2, 7, 2, 17.0),
    Sketcher.Constraint("DistanceX", 4, 2, 7, 2, 55.0),
    Sketcher.Constraint("DistanceX", 11, 2, 12, 2, 41.5),
    Sketcher.Constraint("Distance", 0, 30.560801),
    Sketcher.Constraint("DistanceX", 2, 2, 2, 1, 1.862629),
    Sketcher.Constraint("DistanceY", 8, 2, 8, 1, 1.18531),
    Sketcher.Constraint("DistanceY", 0, 2, -1, 1, 6.958339),
    Sketcher.Constraint("DistanceX", -1, 1, 14, 2, 54.51188),
])
pad11 = doc.addObject("PartDesign::Pad", "Pad010")
body.addObject(pad11)
pad11.Profile = sketch18
pad11.Length = 1.5
pad11.Reversed = True

# Sketch on XY plane
sketch19 = doc.addObject("Sketcher::SketchObject", "Sketch018")
body.addObject(sketch19)
sketch19.AttachmentSupport = (doc.XY_Plane, [""])
sketch19.MapMode = "FlatFace"
sketch19.AttachmentOffset = App.Placement(App.Vector(0, 0, 11.634316), App.Rotation())
add_polygon(sketch19, [(-66.8, 0.5), (-57.6, 2.2), (-66.8, 4.3)])  # lines 0-2
add_polygon(sketch19, [(75.8, 2.2), (84.7, 0.5), (84.7, 4.3)])  # lines 3-5
sketch19.addConstraint([
    Sketcher.Constraint("Vertical", 2),
    Sketcher.Constraint("Vertical", 4),
    Sketcher.Constraint("Horizontal", 2, 2, 3, 2),
    Sketcher.Constraint("Horizontal", 1, 2, 4, 2),
    Sketcher.Constraint("DistanceY", -1, 1, 2, 2, 0.5),
    Sketcher.Constraint("DistanceX", 2, 2, 3, 2, 151.5),
    Sketcher.Constraint("DistanceY", 2, 2, 2, 1, 3.787768),
    Sketcher.Constraint("DistanceX", 1, 2, 0, 2, 9.263421),
    Sketcher.Constraint("DistanceX", 5, 2, 3, 2, 8.86802),
    Sketcher.Constraint("DistanceY", 5, 2, 4, 2, 2.135092),
    Sketcher.Constraint("DistanceY", 5, 2, 0, 2, 0.073688),
    Sketcher.Constraint("DistanceX", 0, 2, -1, 1, 57.576355),
])
pocket8 = doc.addObject("PartDesign::Pocket", "Pocket007")
body.addObject(pocket8)
pocket8.Profile = sketch19
pocket8.Length = 51.5

doc.recompute()
